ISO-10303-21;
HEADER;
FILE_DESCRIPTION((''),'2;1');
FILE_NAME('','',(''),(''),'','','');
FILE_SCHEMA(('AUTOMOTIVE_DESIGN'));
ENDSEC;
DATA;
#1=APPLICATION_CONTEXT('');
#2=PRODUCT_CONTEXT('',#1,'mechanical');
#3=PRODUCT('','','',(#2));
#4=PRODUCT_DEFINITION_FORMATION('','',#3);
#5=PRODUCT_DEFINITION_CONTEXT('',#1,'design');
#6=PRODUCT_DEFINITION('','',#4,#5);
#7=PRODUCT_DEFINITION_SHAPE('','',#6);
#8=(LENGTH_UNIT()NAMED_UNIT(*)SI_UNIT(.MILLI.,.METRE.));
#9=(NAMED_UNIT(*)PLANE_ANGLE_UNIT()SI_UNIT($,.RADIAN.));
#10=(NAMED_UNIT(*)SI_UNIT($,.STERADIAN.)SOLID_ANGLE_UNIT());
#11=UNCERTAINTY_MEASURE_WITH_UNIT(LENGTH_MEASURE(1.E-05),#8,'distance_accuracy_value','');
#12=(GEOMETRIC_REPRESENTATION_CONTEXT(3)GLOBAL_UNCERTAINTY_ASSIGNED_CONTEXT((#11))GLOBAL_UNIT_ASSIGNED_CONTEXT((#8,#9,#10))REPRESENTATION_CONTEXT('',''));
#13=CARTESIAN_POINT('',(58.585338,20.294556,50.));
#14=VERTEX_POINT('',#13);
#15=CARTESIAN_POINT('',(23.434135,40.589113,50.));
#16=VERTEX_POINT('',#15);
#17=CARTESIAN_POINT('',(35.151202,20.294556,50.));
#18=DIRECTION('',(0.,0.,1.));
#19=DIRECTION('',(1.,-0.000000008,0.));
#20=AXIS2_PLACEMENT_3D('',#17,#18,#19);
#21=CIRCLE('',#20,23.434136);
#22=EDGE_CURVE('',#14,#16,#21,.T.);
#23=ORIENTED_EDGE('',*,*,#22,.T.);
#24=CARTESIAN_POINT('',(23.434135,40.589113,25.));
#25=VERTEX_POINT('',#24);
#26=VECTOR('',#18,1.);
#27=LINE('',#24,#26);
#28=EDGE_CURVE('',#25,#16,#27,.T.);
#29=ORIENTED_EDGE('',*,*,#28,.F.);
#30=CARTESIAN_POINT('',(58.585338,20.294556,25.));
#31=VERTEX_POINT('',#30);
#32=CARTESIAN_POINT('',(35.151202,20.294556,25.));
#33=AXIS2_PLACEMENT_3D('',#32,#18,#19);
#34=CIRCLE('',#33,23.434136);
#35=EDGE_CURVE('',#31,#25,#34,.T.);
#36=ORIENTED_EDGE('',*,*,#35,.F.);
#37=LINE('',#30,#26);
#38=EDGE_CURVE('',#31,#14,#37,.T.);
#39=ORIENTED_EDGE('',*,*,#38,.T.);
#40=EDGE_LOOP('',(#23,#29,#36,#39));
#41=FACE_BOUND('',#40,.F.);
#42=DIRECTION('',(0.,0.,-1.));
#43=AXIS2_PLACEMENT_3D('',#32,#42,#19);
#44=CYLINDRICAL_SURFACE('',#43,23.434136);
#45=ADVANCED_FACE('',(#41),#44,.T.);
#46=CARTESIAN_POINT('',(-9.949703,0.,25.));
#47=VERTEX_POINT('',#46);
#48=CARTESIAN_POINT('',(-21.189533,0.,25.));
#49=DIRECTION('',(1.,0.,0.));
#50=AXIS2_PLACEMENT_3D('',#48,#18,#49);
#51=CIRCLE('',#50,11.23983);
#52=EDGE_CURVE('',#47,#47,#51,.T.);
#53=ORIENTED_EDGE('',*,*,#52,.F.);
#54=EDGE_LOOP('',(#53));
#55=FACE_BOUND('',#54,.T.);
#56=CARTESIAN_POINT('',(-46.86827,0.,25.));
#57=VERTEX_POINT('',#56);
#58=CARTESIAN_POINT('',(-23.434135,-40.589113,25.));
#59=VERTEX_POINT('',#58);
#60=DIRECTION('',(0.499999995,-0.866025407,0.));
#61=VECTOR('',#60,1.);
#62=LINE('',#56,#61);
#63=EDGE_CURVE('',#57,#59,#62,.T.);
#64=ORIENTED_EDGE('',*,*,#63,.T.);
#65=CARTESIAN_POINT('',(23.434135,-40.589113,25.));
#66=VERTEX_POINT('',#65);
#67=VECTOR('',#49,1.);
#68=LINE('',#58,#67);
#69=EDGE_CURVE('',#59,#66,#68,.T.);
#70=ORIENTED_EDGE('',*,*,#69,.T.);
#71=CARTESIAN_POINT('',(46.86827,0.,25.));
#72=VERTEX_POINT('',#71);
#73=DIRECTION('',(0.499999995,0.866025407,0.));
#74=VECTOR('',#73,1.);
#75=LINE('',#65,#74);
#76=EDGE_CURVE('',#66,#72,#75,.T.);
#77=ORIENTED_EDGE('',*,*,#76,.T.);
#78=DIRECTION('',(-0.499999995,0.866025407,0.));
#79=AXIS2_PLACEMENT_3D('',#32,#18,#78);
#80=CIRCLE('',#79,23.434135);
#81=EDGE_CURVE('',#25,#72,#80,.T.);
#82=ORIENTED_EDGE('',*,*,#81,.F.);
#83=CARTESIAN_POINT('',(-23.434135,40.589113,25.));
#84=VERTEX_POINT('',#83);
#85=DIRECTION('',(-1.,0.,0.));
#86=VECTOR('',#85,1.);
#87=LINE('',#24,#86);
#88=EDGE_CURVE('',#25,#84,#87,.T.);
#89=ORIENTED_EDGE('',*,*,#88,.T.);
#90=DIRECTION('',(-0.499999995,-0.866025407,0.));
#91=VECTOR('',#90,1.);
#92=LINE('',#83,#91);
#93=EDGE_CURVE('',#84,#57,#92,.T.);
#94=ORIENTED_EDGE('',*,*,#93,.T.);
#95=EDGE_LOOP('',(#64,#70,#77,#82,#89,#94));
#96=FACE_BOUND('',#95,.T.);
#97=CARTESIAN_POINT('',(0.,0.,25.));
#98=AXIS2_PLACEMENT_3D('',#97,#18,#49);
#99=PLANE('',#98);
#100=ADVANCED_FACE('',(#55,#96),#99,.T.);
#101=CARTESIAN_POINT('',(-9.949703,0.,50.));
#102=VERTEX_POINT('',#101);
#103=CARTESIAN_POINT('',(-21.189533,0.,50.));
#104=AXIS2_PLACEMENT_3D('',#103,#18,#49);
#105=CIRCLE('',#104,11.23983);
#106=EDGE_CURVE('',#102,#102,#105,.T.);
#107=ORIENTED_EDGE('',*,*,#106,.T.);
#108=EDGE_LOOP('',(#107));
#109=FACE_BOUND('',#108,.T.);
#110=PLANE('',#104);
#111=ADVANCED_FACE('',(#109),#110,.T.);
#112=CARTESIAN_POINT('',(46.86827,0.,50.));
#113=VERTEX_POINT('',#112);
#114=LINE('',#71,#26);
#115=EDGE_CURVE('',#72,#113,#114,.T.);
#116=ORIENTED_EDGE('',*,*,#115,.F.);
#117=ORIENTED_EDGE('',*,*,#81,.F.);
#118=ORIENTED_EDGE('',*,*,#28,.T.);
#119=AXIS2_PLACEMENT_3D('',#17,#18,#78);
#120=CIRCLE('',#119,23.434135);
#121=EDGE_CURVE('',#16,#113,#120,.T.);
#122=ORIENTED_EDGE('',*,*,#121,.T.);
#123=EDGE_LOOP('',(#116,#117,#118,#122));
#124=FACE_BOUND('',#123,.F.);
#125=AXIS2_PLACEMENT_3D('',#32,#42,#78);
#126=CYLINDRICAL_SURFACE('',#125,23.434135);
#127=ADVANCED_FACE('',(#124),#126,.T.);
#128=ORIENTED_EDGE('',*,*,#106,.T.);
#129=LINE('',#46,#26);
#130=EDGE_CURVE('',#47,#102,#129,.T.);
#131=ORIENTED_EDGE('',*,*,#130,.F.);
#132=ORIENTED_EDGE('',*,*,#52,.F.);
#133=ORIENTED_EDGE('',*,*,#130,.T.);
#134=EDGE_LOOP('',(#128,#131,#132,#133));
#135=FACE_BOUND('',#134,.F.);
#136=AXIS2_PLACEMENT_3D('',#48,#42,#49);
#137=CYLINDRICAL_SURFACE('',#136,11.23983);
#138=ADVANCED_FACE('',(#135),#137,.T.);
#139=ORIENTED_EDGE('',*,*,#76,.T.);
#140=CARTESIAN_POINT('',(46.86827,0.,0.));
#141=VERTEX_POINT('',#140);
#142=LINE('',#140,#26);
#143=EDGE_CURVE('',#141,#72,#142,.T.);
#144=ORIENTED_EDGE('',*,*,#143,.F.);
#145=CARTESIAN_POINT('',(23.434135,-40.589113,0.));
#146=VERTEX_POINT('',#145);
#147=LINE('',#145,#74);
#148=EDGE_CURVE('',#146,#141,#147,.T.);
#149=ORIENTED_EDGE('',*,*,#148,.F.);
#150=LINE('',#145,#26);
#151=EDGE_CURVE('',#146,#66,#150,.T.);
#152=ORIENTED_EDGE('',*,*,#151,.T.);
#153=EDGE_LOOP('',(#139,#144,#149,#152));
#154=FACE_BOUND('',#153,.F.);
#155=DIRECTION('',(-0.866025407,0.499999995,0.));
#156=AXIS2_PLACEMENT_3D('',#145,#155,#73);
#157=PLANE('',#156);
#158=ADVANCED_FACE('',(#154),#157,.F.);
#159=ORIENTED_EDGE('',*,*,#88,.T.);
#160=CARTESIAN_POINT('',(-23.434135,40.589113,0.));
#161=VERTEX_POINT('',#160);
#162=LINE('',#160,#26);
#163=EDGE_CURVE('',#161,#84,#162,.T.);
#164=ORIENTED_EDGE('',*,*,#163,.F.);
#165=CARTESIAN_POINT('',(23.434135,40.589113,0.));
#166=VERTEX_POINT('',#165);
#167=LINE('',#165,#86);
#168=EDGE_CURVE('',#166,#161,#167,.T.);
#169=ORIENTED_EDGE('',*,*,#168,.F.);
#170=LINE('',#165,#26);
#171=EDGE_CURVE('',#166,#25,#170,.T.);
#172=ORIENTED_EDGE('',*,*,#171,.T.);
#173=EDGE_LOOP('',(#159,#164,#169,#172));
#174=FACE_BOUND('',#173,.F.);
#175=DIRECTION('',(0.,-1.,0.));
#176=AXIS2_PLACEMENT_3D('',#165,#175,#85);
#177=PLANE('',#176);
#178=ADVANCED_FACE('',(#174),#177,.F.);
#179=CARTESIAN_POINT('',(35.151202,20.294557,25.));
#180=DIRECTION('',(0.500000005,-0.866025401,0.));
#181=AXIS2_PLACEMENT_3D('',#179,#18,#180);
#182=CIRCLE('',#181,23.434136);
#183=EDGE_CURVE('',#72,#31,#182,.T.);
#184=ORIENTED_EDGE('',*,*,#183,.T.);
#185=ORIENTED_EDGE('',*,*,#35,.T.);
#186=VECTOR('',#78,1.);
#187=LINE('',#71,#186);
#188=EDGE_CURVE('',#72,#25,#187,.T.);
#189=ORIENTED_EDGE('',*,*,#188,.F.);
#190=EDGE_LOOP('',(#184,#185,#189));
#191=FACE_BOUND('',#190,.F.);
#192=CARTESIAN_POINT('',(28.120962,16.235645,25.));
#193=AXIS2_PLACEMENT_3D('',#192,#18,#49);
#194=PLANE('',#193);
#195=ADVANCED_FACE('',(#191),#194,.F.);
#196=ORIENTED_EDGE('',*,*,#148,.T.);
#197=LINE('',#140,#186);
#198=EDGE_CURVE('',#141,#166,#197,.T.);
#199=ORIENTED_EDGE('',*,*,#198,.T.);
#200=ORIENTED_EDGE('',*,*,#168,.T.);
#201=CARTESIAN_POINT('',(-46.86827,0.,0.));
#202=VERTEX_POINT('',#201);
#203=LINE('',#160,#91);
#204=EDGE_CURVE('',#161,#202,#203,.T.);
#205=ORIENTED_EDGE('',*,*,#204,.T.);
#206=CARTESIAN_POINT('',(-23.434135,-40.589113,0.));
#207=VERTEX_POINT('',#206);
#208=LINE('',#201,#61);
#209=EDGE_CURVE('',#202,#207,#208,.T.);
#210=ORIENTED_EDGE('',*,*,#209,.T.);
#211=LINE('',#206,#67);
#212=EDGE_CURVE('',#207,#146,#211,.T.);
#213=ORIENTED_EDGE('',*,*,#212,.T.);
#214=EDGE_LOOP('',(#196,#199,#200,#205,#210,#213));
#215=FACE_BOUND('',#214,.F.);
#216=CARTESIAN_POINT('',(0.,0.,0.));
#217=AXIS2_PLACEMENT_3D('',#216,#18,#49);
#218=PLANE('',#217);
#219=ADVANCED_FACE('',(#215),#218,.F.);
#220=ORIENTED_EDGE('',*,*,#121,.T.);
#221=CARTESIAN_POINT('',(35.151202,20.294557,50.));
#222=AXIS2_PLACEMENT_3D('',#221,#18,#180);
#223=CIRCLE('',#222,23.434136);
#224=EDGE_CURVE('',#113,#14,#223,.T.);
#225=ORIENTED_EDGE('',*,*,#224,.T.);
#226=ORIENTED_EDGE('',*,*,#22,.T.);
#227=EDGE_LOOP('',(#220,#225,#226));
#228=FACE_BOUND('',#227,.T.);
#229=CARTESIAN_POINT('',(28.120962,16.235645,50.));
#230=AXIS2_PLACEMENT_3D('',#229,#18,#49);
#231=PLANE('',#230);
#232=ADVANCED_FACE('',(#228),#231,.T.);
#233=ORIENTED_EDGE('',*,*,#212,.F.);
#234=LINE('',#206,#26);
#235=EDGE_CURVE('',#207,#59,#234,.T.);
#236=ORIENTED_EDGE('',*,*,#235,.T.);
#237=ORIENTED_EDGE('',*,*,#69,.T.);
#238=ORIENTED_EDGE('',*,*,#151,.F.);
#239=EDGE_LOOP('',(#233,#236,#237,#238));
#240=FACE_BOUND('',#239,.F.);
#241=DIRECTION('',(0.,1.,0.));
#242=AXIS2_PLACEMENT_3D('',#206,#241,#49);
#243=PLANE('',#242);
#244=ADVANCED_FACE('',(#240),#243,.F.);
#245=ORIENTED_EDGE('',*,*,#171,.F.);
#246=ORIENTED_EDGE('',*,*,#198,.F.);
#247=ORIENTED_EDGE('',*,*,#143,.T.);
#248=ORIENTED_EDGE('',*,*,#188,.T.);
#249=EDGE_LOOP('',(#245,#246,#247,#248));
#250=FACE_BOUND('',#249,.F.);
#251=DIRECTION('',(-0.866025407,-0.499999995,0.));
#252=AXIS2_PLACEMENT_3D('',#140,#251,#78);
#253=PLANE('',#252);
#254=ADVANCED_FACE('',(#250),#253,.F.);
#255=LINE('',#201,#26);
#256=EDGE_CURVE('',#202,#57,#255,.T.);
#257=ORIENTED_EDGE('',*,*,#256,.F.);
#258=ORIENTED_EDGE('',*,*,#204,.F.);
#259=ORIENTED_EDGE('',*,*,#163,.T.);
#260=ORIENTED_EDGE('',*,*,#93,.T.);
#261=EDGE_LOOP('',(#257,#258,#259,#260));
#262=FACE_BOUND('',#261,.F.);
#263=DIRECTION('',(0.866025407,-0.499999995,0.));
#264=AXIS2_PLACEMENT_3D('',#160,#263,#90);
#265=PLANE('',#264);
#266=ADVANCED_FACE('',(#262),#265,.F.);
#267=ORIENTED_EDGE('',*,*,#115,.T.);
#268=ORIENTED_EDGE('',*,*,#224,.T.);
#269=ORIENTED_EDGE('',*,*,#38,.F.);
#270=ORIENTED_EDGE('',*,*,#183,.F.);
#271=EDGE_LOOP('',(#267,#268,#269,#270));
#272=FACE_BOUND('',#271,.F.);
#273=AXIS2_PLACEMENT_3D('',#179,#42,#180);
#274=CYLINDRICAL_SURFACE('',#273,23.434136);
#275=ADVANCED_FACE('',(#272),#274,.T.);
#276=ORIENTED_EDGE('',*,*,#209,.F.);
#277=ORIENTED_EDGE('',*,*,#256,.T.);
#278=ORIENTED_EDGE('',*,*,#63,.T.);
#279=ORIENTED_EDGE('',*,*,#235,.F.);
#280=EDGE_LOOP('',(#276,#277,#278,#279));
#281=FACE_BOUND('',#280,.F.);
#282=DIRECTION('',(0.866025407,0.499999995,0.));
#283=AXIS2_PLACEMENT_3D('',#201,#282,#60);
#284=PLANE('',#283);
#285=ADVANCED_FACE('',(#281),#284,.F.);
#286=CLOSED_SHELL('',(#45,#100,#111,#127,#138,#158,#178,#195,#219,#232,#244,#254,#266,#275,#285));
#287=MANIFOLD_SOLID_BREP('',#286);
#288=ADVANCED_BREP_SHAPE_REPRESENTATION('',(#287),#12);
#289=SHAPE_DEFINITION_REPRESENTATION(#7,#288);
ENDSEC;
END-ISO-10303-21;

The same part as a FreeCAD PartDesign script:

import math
import FreeCAD as App
import Part
import Sketcher
Q = App.Units.Quantity

doc = App.newDocument("Part")
body = doc.addObject("PartDesign::Body", "Body")

# Sketch on XY plane
sketch1 = body.newObject("Sketcher::SketchObject", "Sketch")
sketch1.AttachmentSupport = (doc.getObject("XY_Plane"), [""])
sketch1.MapMode = "FlatFace"
sketch1.addGeometry([
    Part.LineSegment(App.Vector(23.434135, 40.589113, 0), App.Vector(-23.434135, 40.589113, 0)),  # 0
    Part.LineSegment(App.Vector(-23.434135, 40.589113, 0), App.Vector(-46.86827, 0, 0)),  # 1
    Part.LineSegment(App.Vector(-46.86827, 0, 0), App.Vector(-23.434135, -40.589113, 0)),  # 2
    Part.LineSegment(App.Vector(-23.434135, -40.589113, 0), App.Vector(23.434135, -40.589113, 0)),  # 3
    Part.LineSegment(App.Vector(23.434135, -40.589113, 0), App.Vector(46.86827, 0, 0)),  # 4
    Part.LineSegment(App.Vector(46.86827, 0, 0), App.Vector(23.434135, 40.589113, 0)),  # 5
], False)
sketch1.addConstraint([
    Sketcher.Constraint("Coincident", 0, 2, 1, 1),
    Sketcher.Constraint("Coincident", 1, 2, 2, 1),
    Sketcher.Constraint("Coincident", 2, 2, 3, 1),
    Sketcher.Constraint("Coincident", 3, 2, 4, 1),
    Sketcher.Constraint("Coincident", 4, 2, 5, 1),
    Sketcher.Constraint("Coincident", 5, 2, 0, 1),
    Sketcher.Constraint("Horizontal", 0),
    Sketcher.Constraint("Horizontal", 3),
    Sketcher.Constraint("Symmetric", 0, 2, 3, 2, -1, 1),
    Sketcher.Constraint("Symmetric", 1, 2, 4, 2, -1, 1),
    Sketcher.Constraint("PointOnObject", 1, 2, -1),
    Sketcher.Constraint("Parallel", 2, 5),
    Sketcher.Constraint("Vertical", 0, 2, 2, 2),
    Sketcher.Constraint("Angle", 1, Q("-120 deg")),
    Sketcher.Constraint("DistanceX", 0, 2, 0, 1, 46.86827),
    Sketcher.Constraint("Distance", 1, 46.86827),
])
pad1 = body.newObject("PartDesign::Pad", "Pad")
pad1.Profile = sketch1
pad1.Length = 25

# Sketch on XY plane
sketch2 = body.newObject("Sketcher::SketchObject", "Sketch001")
sketch2.AttachmentSupport = (doc.getObject("XY_Plane"), [""])
sketch2.MapMode = "FlatFace"
sketch2.AttachmentOffset = App.Placement(App.Vector(0, 0, 25), App.Rotation())
sketch2.addGeometry([
    Part.ArcOfCircle(Part.Circle(App.Vector(35.151202, 20.294556, 0), App.Vector(0, 0, 1), 23.434135), math.radians(120), math.radians(300)),
    Part.ArcOfCircle(Part.Circle(App.Vector(35.151202, 20.294557, 0), App.Vector(0, 0, 1), 23.434136), math.radians(-60), math.radians(-0.000003)),
    Part.ArcOfCircle(Part.Circle(App.Vector(35.151202, 20.294556, 0), App.Vector(0, 0, 1), 23.434136), math.radians(0), math.radians(119.999999)),
], False)
sketch2.addConstraint([
    Sketcher.Constraint("Tangent", 0, 2, 1, 1),
    Sketcher.Constraint("Tangent", 1, 2, 2, 1),
    Sketcher.Constraint("Tangent", 2, 2, 0, 1),
    Sketcher.Constraint("PointOnObject", 0, 2, -1),
    Sketcher.Constraint("Horizontal", 2, 3, 1, 2),
    Sketcher.Constraint("Radius", 0, 23.434135),
    Sketcher.Constraint("DistanceX", -1, 1, 1, 3, 35.151202),
    Sketcher.Constraint("DistanceX", -1, 1, 0, 2, 46.86827),
    Sketcher.Constraint("DistanceX", -1, 1, 2, 2, 23.434135),
])
pad2 = body.newObject("PartDesign::Pad", "Pad001")
pad2.Profile = sketch2
pad2.Length = 25

# Sketch on XY plane
sketch3 = body.newObject("Sketcher::SketchObject", "Sketch002")
sketch3.AttachmentSupport = (doc.getObject("XY_Plane"), [""])
sketch3.MapMode = "FlatFace"
sketch3.AttachmentOffset = App.Placement(App.Vector(0, 0, 25), App.Rotation())
sketch3.addGeometry(Part.Circle(App.Vector(-21.189533, 0, 0), App.Vector(0, 0, 1), 11.23983), False)
sketch3.addConstraint([
    Sketcher.Constraint("PointOnObject", 0, 3, -1),
    Sketcher.Constraint("Diameter", 0, 22.47966),
    Sketcher.Constraint("DistanceX", 0, 3, -1, 1, 21.189533),
])
pad3 = body.newObject("PartDesign::Pad", "Pad002")
pad3.Profile = sketch3
pad3.Length = 25

doc.recompute()
